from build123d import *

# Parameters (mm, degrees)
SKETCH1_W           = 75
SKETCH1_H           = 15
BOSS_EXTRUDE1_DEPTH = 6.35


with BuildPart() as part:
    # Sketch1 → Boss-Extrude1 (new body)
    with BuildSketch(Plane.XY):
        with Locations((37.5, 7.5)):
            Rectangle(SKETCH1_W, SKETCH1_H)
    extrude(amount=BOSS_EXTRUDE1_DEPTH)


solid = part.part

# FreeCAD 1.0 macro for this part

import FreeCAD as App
import Part
import Sketcher

V = App.Vector


def add_polygon(sketch, points):
    """Adds a closed chain of lines whose ends are joined by coincident constraints."""
    first, n = sketch.GeometryCount, len(points)
    for a, b in zip(points, points[1:] + points[:1]):
        sketch.addGeometry(Part.LineSegment(App.Vector(*a, 0), App.Vector(*b, 0)), False)
    for i in range(n):
        sketch.addConstraint(Sketcher.Constraint("Coincident", first + i, 2, first + (i + 1) % n, 1))

doc = App.newDocument("Part")
params = doc.addObject("Spreadsheet::Sheet", "Params")
for row, (alias, value) in enumerate([
    ("sketch1_width", "75 mm"),
    ("sketch1_height", "15 mm"),
    ("pad1_length", "6.35 mm"),
], start=1):
    params.set(f"A{row}", alias)
    params.set(f"B{row}", "=" + value)
    params.setAlias(f"B{row}", alias)

body = doc.addObject("PartDesign::Body", "Body")

# Sketch on XY plane
sketch1 = body.newObject("Sketcher::SketchObject", "Sketch")
sketch1.AttachmentSupport = (doc.getObject("XY_Plane"), [""])
sketch1.MapMode = "FlatFace"
add_polygon(sketch1, [(0, 15), (0, 0), (75, 0), (75, 15)])  # lines 0-3
sketch1.addConstraint([
    Sketcher.Constraint("Vertical", 0),
    Sketcher.Constraint("Horizontal", 1),
    Sketcher.Constraint("Vertical", 2),
    Sketcher.Constraint("Horizontal", 3),
    Sketcher.Constraint("Coincident", 0, 2, -1, 1),
    Sketcher.Constraint("DistanceX", 1, 1, 1, 2, 75.0),
    Sketcher.Constraint("DistanceY", 0, 2, 0, 1, 15.0),
])
sketch1.setExpression("Constraints[9]", "Params.sketch1_width")
sketch1.setExpression("Constraints[10]", "Params.sketch1_height")
pad1 = body.newObject("PartDesign::Pad", "Pad")
pad1.Profile = sketch1
pad1.setExpression("Length", "Params.pad1_length")

doc.recompute()
